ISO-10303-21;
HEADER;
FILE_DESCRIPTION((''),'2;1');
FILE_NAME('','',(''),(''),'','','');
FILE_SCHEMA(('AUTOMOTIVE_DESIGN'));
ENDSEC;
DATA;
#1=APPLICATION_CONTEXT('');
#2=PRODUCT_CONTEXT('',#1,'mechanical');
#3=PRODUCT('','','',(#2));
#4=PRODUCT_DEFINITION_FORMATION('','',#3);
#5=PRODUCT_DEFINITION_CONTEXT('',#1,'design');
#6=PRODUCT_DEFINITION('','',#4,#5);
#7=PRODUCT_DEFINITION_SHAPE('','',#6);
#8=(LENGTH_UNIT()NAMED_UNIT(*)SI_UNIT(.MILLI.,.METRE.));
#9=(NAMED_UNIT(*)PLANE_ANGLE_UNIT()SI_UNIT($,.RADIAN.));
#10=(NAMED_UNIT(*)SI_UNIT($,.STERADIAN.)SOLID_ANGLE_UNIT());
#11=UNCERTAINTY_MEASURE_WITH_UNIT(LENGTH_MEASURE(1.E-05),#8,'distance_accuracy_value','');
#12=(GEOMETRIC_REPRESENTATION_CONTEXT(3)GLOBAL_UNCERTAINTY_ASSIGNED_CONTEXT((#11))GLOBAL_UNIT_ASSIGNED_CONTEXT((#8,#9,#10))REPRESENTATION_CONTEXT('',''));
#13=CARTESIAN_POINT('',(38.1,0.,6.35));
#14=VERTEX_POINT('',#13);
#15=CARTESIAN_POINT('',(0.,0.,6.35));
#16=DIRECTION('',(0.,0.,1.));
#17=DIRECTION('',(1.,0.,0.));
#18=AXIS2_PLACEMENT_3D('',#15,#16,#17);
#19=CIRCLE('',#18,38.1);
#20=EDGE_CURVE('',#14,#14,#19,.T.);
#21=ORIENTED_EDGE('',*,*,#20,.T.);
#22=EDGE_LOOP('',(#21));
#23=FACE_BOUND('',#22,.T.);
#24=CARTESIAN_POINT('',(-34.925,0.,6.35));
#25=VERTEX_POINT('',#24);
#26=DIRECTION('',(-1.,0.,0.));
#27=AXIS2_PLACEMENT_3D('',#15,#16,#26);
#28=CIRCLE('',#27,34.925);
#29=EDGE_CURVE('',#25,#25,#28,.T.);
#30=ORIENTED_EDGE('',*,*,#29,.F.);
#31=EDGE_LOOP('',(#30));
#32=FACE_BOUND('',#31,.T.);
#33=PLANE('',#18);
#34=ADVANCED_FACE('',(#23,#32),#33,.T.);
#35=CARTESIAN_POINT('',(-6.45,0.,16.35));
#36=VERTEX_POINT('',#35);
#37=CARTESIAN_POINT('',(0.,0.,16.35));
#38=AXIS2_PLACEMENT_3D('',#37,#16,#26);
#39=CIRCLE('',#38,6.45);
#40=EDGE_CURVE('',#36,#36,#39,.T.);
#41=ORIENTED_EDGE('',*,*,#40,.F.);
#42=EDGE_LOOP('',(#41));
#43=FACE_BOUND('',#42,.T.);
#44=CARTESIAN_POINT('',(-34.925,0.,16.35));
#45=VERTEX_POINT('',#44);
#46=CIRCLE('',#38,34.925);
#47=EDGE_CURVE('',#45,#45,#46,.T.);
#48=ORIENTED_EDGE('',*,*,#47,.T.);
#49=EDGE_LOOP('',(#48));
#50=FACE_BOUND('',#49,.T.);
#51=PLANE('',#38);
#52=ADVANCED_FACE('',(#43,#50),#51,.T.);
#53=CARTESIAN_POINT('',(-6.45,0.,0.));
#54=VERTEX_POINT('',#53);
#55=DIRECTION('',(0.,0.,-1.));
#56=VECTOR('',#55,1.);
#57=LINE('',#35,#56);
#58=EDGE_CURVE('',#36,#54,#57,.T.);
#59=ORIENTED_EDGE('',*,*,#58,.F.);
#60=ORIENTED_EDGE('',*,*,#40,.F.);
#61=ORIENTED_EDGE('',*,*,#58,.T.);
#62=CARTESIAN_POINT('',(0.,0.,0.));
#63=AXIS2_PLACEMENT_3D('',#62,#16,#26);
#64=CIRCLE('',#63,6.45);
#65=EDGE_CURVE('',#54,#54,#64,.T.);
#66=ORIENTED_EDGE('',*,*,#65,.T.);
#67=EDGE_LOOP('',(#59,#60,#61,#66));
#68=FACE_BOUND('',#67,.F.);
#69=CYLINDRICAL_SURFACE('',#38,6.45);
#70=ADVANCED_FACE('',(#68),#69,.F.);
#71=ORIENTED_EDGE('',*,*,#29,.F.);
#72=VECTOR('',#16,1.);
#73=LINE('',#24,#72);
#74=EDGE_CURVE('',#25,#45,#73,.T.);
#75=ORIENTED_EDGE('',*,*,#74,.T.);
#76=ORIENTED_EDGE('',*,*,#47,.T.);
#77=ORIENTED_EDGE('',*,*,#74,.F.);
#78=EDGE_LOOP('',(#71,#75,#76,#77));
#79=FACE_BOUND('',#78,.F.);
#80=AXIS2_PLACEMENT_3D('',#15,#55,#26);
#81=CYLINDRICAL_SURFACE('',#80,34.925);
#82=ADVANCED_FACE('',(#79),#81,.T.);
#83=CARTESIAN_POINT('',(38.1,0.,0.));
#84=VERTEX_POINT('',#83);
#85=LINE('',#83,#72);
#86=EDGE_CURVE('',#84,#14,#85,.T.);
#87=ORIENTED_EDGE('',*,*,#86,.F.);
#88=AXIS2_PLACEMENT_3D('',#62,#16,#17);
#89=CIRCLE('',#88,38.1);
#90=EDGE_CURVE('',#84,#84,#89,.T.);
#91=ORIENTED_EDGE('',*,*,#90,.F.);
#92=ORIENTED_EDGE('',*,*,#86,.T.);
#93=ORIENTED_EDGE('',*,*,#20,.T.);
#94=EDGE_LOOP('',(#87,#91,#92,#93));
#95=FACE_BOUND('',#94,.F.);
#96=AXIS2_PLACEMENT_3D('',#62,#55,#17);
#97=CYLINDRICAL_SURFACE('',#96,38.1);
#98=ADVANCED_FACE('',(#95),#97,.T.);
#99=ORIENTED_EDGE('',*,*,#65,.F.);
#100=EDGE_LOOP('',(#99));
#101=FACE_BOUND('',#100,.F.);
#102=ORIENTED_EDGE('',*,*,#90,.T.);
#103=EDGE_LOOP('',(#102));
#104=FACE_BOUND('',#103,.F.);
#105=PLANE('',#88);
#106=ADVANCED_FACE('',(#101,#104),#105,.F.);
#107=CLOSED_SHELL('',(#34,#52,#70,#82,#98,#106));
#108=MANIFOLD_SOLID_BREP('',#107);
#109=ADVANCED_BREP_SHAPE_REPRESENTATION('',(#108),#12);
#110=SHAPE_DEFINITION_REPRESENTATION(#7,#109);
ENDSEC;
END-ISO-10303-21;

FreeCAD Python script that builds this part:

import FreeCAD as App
import Part
import Sketcher
from FreeCAD import Vector
Q = App.Units.Quantity

doc = App.newDocument("Part")
body = doc.addObject("PartDesign::Body", "Body")

# Sketch on XY plane
sketch1 = body.newObject("Sketcher::SketchObject", "Sketch")
sketch1.AttachmentSupport = (doc.getObject("XY_Plane"), [""])
sketch1.MapMode = "FlatFace"
sketch1.addGeometry(Part.Circle(Vector(0, 0, 0), Vector(0, 0, 1), 38), False)
sketch1.addConstraint(Sketcher.Constraint("Coincident", 0, 3, -1, 1))
sketch1.addConstraint(Sketcher.Constraint("Diameter", 0, Q("3 in")))
pad1 = body.newObject("PartDesign::Pad", "Pad")
pad1.Profile = sketch1
pad1.Length = Q("0.25 in")

# Sketch on XY plane
sketch2 = body.newObject("Sketcher::SketchObject", "Sketch001")
sketch2.AttachmentSupport = (doc.getObject("XY_Plane"), [""])
sketch2.MapMode = "FlatFace"
sketch2.AttachmentOffset = App.Placement(Vector(0, 0, 0.25 * 25.4), App.Rotation())
sketch2.addGeometry(Part.Circle(Vector(0, 0, 0), Vector(0, 0, 1), 35), False)
sketch2.addConstraint(Sketcher.Constraint("Coincident", 0, 3, -1, 1))
sketch2.addConstraint(Sketcher.Constraint("Diameter", 0, Q("2.75 in")))
pad2 = body.newObject("PartDesign::Pad", "Pad001")
pad2.Profile = sketch2
pad2.Length = Q("0.3937008 in")

# Sketch on XY plane
sketch3 = body.newObject("Sketcher::SketchObject", "Sketch002")
sketch3.AttachmentSupport = (doc.getObject("XY_Plane"), [""])
sketch3.MapMode = "FlatFace"
sketch3.AttachmentOffset = App.Placement(Vector(0, 0, 0.6437008 * 25.4), App.Rotation())
sketch3.addGeometry(Part.Circle(Vector(0, 0, 0), Vector(0, 0, 1), 6), False)
sketch3.addConstraint(Sketcher.Constraint("Coincident", 0, 3, -1, 1))
sketch3.addConstraint(Sketcher.Constraint("Diameter", 0, Q("12.9 mm")))
pocket1 = body.newObject("PartDesign::Pocket", "Pocket")
pocket1.Profile = sketch3
pocket1.Type = "ThroughAll"

doc.recompute()
